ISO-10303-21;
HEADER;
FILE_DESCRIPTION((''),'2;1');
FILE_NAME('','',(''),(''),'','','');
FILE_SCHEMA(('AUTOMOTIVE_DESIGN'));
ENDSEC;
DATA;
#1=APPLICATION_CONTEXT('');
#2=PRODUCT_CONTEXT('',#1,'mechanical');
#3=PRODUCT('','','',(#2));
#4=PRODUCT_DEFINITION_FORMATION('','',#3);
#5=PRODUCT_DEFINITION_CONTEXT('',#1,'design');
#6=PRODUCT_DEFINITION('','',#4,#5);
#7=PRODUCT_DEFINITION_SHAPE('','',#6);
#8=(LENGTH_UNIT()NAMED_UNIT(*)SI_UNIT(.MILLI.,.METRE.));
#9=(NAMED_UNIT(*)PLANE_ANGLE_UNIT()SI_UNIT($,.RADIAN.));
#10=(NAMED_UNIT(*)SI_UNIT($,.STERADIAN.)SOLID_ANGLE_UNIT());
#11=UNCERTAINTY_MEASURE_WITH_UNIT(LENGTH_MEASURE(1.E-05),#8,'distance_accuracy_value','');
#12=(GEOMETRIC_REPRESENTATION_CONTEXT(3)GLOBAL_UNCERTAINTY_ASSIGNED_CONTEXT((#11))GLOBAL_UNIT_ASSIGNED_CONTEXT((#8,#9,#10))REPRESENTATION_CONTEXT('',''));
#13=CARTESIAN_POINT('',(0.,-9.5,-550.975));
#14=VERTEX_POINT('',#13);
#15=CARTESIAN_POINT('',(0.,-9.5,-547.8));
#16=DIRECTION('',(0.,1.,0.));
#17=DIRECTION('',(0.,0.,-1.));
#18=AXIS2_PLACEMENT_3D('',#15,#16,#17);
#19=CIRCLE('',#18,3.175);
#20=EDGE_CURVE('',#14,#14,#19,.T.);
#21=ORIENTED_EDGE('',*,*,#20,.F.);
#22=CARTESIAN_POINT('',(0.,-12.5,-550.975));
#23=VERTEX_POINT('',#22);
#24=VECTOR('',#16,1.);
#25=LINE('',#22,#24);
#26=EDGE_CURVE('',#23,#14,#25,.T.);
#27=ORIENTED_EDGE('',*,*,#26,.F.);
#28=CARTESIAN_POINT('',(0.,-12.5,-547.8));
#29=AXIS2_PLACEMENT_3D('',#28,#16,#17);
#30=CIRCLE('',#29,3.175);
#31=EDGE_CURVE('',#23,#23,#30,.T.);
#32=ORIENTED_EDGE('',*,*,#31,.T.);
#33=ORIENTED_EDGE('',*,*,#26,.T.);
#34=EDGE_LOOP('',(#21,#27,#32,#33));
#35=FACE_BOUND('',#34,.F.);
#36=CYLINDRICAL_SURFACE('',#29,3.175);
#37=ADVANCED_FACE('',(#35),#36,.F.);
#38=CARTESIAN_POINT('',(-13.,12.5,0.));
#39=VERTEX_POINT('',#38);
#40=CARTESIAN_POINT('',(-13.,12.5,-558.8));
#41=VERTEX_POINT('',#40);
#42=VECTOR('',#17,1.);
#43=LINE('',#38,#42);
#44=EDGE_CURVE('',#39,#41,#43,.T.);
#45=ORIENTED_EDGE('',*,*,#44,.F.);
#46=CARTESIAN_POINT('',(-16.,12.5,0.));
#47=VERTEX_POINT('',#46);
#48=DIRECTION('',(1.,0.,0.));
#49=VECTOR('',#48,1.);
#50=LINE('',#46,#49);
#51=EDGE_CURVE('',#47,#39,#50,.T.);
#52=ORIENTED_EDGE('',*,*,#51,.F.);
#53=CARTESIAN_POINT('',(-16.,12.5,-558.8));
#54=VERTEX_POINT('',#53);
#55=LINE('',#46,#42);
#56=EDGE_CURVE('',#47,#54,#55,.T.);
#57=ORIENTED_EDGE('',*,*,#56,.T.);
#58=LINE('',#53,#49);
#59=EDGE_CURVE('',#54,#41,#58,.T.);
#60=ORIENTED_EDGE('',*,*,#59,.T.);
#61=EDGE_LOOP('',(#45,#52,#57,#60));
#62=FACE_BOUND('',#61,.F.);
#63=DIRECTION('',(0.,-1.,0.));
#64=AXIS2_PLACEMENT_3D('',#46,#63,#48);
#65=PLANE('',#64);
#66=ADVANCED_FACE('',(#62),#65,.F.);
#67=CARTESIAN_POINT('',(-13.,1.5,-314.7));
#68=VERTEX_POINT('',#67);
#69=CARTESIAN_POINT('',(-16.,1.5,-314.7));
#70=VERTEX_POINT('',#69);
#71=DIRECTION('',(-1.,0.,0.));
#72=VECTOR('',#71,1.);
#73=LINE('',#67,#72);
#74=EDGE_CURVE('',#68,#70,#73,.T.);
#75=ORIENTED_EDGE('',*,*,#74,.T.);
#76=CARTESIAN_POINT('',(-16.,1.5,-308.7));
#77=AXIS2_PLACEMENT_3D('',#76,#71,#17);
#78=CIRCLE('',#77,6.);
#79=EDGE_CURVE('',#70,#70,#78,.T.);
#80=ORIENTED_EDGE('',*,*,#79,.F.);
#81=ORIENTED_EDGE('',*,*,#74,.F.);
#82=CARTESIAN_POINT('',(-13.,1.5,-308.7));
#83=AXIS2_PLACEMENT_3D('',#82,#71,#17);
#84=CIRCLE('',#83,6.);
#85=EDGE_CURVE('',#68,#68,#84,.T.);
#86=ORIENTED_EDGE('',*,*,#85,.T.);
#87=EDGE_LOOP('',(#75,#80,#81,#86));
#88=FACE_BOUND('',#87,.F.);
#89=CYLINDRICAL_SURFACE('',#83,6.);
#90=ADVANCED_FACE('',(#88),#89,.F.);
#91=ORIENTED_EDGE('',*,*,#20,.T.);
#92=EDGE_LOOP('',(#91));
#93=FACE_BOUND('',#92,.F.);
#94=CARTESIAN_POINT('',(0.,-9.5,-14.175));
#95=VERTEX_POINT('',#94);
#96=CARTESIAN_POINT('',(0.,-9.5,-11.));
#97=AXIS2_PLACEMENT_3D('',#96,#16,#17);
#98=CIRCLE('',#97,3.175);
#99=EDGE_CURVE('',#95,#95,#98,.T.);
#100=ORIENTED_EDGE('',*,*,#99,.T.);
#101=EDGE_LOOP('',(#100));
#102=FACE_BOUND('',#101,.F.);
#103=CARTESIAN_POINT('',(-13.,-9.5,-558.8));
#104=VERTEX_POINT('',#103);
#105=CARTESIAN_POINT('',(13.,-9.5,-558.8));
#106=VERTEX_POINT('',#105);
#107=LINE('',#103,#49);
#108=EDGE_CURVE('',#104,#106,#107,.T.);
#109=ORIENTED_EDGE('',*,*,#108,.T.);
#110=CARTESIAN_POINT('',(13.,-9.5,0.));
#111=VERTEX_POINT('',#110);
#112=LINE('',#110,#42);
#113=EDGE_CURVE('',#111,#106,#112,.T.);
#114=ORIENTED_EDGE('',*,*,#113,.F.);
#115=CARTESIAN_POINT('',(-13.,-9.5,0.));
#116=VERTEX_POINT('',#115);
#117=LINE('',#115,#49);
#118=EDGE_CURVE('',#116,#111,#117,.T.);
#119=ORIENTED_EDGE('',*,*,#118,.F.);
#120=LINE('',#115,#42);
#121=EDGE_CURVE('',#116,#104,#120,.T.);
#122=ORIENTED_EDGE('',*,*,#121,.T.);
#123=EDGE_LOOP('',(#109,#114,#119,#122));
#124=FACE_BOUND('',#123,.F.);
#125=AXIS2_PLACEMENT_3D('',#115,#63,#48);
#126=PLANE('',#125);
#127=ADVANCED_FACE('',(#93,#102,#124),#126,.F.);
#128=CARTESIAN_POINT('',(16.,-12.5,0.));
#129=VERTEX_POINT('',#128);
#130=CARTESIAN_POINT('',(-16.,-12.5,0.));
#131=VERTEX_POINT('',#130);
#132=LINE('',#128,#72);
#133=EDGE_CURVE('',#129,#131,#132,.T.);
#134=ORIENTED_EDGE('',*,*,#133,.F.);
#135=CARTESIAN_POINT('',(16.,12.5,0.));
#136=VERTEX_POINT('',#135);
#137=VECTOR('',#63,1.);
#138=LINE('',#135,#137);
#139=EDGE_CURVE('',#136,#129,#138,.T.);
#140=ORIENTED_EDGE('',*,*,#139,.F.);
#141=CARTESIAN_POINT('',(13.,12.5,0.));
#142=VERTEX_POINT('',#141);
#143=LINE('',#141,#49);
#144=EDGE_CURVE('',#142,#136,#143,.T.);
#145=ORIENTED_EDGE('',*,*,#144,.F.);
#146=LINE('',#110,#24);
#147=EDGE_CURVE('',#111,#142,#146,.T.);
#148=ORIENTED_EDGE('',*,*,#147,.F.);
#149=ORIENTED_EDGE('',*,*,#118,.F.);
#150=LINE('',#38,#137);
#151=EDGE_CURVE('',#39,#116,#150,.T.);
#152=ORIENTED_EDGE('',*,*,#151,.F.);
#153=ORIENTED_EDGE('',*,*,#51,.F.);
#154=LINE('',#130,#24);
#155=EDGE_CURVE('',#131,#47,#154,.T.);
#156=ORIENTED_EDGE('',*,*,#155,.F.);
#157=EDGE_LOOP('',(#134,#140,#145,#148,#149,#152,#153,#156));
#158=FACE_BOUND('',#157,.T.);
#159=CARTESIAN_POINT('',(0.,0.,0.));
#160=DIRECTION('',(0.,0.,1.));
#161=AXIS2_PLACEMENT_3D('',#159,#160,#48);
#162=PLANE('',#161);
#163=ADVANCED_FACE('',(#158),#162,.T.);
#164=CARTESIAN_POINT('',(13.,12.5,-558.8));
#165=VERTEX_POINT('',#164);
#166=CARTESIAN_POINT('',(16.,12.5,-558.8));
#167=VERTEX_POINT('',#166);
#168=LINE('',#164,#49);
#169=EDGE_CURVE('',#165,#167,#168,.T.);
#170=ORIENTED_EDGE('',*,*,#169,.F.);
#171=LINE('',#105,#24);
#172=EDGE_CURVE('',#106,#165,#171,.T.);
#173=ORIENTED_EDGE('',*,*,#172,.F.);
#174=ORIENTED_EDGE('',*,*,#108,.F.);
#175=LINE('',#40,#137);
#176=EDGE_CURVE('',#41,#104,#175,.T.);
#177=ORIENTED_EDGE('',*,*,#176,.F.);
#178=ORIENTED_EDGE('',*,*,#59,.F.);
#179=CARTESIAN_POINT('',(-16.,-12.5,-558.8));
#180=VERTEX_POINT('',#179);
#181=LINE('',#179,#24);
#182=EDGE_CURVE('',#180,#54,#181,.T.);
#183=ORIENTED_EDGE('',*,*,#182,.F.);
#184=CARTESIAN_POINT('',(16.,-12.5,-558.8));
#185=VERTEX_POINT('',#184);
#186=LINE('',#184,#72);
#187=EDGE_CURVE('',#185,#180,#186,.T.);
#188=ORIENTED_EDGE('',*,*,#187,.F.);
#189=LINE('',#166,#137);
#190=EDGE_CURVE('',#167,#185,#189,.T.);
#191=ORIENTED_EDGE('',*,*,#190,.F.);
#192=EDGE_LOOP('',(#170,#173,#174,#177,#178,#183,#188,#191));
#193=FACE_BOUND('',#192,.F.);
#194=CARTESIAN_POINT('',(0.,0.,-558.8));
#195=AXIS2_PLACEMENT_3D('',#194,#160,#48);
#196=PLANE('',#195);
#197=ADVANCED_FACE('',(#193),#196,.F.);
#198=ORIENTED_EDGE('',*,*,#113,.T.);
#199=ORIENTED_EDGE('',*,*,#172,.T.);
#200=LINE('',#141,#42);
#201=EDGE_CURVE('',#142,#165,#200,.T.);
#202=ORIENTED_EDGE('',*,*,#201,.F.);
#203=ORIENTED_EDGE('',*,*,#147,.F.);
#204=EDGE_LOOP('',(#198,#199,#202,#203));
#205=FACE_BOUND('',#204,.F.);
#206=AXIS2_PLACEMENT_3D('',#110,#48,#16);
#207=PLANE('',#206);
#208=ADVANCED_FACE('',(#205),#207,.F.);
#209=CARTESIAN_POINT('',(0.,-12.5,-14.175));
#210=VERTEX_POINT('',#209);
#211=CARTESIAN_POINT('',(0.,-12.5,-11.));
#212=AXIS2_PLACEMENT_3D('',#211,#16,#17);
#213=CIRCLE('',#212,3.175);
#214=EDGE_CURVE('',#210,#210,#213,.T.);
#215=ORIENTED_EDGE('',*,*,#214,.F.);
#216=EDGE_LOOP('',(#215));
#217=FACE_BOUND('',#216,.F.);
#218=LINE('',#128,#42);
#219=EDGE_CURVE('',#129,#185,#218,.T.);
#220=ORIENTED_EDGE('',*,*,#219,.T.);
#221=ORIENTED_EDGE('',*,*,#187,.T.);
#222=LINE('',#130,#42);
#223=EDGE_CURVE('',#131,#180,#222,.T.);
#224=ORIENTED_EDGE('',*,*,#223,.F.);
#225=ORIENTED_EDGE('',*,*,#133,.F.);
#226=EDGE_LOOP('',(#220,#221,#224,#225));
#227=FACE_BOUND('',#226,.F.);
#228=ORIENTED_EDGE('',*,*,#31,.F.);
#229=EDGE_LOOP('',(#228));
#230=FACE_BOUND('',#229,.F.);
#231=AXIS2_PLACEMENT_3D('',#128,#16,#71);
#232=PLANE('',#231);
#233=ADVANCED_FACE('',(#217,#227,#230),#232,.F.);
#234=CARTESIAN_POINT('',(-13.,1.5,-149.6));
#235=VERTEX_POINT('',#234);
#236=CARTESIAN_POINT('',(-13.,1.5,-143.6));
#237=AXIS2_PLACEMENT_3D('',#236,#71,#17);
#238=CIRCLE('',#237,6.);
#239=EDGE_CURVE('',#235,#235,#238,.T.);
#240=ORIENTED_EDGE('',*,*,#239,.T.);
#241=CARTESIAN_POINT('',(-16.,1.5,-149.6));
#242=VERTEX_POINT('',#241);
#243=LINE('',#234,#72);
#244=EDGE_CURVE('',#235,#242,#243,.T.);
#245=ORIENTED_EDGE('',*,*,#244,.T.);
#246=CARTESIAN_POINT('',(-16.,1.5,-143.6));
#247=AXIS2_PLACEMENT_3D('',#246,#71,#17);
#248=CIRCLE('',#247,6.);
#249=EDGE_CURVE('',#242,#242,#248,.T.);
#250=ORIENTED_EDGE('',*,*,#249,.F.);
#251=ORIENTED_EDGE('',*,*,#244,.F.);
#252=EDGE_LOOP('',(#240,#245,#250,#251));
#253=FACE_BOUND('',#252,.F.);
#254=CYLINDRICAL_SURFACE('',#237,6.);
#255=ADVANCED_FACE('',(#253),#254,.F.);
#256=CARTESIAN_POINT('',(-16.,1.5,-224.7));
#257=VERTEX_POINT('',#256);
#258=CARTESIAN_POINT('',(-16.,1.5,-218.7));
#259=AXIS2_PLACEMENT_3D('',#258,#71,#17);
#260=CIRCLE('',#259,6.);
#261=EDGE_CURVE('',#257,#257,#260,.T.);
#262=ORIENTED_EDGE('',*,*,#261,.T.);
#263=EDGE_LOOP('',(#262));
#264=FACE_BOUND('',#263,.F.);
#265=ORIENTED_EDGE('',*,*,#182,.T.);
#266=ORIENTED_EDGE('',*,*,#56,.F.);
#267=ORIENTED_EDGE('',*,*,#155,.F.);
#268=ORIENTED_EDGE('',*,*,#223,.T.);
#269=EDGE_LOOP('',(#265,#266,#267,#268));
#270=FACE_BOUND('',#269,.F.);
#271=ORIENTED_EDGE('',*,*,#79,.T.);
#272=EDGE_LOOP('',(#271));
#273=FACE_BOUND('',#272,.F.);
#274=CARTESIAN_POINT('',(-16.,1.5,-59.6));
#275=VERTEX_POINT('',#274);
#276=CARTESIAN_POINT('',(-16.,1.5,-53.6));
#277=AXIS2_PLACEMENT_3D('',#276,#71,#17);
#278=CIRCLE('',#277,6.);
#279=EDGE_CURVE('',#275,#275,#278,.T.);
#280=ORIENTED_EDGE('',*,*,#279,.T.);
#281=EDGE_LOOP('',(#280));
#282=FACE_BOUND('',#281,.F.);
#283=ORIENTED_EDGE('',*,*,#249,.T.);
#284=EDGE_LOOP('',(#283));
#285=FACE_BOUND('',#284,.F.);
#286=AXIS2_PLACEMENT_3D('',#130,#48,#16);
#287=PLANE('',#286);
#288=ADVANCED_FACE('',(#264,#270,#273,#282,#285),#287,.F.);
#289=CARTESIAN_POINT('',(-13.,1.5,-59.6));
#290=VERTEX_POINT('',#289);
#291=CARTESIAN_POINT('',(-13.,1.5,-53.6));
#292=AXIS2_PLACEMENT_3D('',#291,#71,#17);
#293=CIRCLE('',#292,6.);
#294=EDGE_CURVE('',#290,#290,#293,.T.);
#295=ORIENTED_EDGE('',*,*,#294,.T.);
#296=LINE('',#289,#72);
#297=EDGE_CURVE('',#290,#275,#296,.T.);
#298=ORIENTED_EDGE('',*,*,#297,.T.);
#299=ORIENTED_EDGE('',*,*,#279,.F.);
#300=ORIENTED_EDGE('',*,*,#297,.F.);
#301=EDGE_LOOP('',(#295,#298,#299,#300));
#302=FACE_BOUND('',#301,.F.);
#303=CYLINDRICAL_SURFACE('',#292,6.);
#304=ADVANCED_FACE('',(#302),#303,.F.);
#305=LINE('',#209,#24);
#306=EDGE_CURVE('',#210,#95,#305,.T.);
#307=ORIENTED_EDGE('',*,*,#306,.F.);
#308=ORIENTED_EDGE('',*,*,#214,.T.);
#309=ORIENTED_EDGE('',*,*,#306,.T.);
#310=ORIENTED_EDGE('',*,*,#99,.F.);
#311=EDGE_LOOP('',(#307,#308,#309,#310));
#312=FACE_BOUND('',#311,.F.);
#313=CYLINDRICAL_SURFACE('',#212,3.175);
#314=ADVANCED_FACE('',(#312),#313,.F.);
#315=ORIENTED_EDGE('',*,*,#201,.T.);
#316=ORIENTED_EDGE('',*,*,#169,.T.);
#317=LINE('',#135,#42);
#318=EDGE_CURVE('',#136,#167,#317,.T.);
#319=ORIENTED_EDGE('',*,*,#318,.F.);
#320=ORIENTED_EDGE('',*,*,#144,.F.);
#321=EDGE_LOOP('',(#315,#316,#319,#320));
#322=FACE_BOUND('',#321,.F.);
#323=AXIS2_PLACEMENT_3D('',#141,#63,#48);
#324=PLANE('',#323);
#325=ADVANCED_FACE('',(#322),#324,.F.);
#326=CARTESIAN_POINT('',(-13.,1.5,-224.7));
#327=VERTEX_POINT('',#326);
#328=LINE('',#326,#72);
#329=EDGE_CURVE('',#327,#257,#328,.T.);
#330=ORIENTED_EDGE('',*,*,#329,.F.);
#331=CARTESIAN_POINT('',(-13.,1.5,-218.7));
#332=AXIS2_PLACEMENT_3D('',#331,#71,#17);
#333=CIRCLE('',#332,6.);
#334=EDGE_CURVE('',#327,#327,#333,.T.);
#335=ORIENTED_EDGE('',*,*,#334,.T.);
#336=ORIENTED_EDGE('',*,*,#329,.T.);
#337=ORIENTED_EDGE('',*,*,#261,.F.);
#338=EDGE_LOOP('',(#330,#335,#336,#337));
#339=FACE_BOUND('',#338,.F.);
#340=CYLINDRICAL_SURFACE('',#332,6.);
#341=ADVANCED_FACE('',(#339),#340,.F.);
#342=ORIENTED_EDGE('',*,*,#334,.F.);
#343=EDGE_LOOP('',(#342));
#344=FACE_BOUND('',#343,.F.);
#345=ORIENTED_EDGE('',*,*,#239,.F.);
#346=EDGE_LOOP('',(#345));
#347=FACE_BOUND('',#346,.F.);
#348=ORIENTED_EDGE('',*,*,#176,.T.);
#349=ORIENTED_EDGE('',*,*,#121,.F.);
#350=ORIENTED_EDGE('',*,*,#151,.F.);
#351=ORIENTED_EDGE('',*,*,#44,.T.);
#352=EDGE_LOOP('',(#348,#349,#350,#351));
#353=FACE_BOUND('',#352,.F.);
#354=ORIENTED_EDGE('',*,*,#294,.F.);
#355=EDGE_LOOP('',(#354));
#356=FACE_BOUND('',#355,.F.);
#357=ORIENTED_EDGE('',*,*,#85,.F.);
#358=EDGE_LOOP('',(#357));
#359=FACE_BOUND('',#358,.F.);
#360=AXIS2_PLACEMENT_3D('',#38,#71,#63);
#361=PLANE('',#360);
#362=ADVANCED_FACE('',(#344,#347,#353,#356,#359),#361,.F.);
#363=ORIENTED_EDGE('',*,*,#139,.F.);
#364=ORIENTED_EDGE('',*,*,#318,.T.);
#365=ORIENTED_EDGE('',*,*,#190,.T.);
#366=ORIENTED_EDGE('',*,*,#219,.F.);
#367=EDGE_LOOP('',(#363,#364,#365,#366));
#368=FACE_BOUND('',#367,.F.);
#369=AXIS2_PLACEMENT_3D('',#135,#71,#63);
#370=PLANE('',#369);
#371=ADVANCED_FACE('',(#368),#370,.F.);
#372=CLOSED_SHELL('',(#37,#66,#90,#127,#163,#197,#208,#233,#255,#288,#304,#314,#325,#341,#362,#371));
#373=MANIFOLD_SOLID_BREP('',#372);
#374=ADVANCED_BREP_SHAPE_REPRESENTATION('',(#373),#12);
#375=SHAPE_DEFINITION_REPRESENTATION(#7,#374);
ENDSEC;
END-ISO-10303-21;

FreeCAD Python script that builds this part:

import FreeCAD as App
import Part
import Sketcher

V = App.Vector
Q = App.Units.Quantity


def add_polygon(sketch, points):
    """Adds a closed chain of lines whose ends are joined by coincident constraints."""
    first, n = sketch.GeometryCount, len(points)
    for a, b in zip(points, points[1:] + points[:1]):
        sketch.addGeometry(Part.LineSegment(App.Vector(*a, 0), App.Vector(*b, 0)), False)
    for i in range(n):
        sketch.addConstraint(Sketcher.Constraint("Coincident", first + i, 2, first + (i + 1) % n, 1))

doc = App.newDocument("Part")
body = doc.addObject("PartDesign::Body", "Body")

sketch1 = body.newObject("Sketcher::SketchObject", "Sketch")
sketch1.AttachmentSupport = (doc.getObject("XY_Plane"), [""])
sketch1.MapMode = "FlatFace"
add_polygon(sketch1, [(-13, 12.5), (-16, 12.5), (-16, -12.5), (16, -12.5), (16, 12.5), (13, 12.5), (13, -9.5), (-13, -9.5)])
sketch1.addConstraint(Sketcher.Constraint("Horizontal", 0))
sketch1.addConstraint(Sketcher.Constraint("Vertical", 1))
sketch1.addConstraint(Sketcher.Constraint("Horizontal", 2))
sketch1.addConstraint(Sketcher.Constraint("Vertical", 3))
sketch1.addConstraint(Sketcher.Constraint("Horizontal", 4))
sketch1.addConstraint(Sketcher.Constraint("Vertical", 5))
sketch1.addConstraint(Sketcher.Constraint("Horizontal", 6))
sketch1.addConstraint(Sketcher.Constraint("Vertical", 7))
sketch1.addConstraint(Sketcher.Constraint("Symmetric", 0, 2, 2, 2, -1, 1))
sketch1.addConstraint(Sketcher.Constraint("Symmetric", 4, 2, 7, 2, -2))
sketch1.addConstraint(Sketcher.Constraint("DistanceX", 0, 2, 0, 1, Q("3 mm")))
sketch1.addConstraint(Sketcher.Constraint("DistanceX", 2, 1, 2, 2, Q("32 mm")))
sketch1.addConstraint(Sketcher.Constraint("DistanceY", 1, 2, 1, 1, Q("25 mm")))
sketch1.addConstraint(Sketcher.Constraint("DistanceY", 2, 2, 5, 2, Q("3 mm")))
pad1 = body.newObject("PartDesign::Pad", "Pad")
pad1.Profile = sketch1
pad1.Length = 558.8
pad1.Reversed = True

sketch2 = body.newObject("Sketcher::SketchObject", "Sketch001")
sketch2.AttachmentSupport = (doc.getObject("XZ_Plane"), [""])
sketch2.MapMode = "FlatFace"
sketch2.AttachmentOffset = App.Placement(V(0, 0, 12.5), App.Rotation())
sketch2.addGeometry(Part.Circle(V(0, -547.8, 0), V(0, 0, 1), 3.2), False)
sketch2.addGeometry(Part.Circle(V(0, -11, 0), V(0, 0, 1), 3.2), False)
sketch2.addConstraint(Sketcher.Constraint("Equal", 0, 1))
sketch2.addConstraint(Sketcher.Constraint("PointOnObject", 0, 3, -2))
sketch2.addConstraint(Sketcher.Constraint("PointOnObject", 1, 3, -2))
sketch2.addConstraint(Sketcher.Constraint("Diameter", 0, Q("6.35 mm")))
sketch2.addConstraint(Sketcher.Constraint("DistanceY", 1, 3, -1, 1, Q("11 mm")))
sketch2.addConstraint(Sketcher.Constraint("DistanceY", 0, 3, -1, 1, Q("547.8 mm")))
doc.recompute()
hole = body.newObject("PartDesign::Hole", "Hole")
hole.Profile = sketch2
hole.ThreadType = "None"
hole.Diameter = 6.35
hole.DepthType = "ThroughAll"

sketch3 = body.newObject("Sketcher::SketchObject", "Sketch002")
sketch3.AttachmentSupport = (doc.getObject("YZ_Plane"), [""])
sketch3.MapMode = "FlatFace"
sketch3.AttachmentOffset = App.Placement(V(0, 0, -13), App.Rotation())
sketch3.addGeometry(Part.Circle(V(2, -309, 0), V(0, 0, 1), 6), False)
sketch3.addGeometry(Part.Circle(V(2, -219, 0), V(0, 0, 1), 6), False)
sketch3.addGeometry(Part.Circle(V(2, -144, 0), V(0, 0, 1), 6), False)
sketch3.addGeometry(Part.Circle(V(2, -54, 0), V(0, 0, 1), 6), False)
sketch3.addConstraint(Sketcher.Constraint("Equal", 0, 1))
sketch3.addConstraint(Sketcher.Constraint("Equal", 1, 2))
sketch3.addConstraint(Sketcher.Constraint("Equal", 2, 3))
sketch3.addConstraint(Sketcher.Constraint("Vertical", 0, 3, 1, 3))
sketch3.addConstraint(Sketcher.Constraint("Vertical", 1, 3, 2, 3))
sketch3.addConstraint(Sketcher.Constraint("Vertical", 2, 3, 3, 3))
sketch3.addConstraint(Sketcher.Constraint("Diameter", 0, Q("12 mm")))
sketch3.addConstraint(Sketcher.Constraint("DistanceY", 0, 3, 1, 3, Q("90 mm")))
sketch3.addConstraint(Sketcher.Constraint("DistanceY", 2, 3, 3, 3, Q("90 mm")))
sketch3.addConstraint(Sketcher.Constraint("DistanceX", -1, 1, 0, 3, Q("1.5 mm")))
sketch3.addConstraint(Sketcher.Constraint("DistanceY", 0, 3, -1, 1, Q("308.7 mm")))
sketch3.addConstraint(Sketcher.Constraint("DistanceY", 2, 3, -1, 1, Q("143.6 mm")))
doc.recompute()
hole2 = body.newObject("PartDesign::Hole", "Hole001")
hole2.Profile = sketch3
hole2.ThreadType = "None"
hole2.Diameter = 12
hole2.DepthType = "Dimension"
hole2.Depth = 3
hole2.DrillPoint = "Angled"
hole2.DrillPointAngle = 118

doc.recompute()
